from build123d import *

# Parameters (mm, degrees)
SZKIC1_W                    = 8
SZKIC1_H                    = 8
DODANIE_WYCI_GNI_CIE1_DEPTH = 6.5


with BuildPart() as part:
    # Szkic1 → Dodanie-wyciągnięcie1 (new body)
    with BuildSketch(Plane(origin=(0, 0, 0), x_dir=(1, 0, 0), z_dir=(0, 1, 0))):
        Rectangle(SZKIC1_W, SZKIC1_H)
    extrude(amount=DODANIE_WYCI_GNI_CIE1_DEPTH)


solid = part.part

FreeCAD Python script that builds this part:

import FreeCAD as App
import Part
import Sketcher

doc = App.newDocument("Part")
body = doc.addObject("PartDesign::Body", "Body")

# Sketch on XZ plane
sketch1 = doc.addObject("Sketcher::SketchObject", "Sketch")
body.addObject(sketch1)
sketch1.AttachmentSupport = (doc.XZ_Plane, [""])
sketch1.MapMode = "FlatFace"
sketch1.addGeometry([
    Part.LineSegment(App.Vector(-4, -4, 0), App.Vector(-4, 4, 0)),
    Part.LineSegment(App.Vector(-4, 4, 0), App.Vector(4, 4, 0)),
    Part.LineSegment(App.Vector(4, 4, 0), App.Vector(4, -4, 0)),
    Part.LineSegment(App.Vector(4, -4, 0), App.Vector(-4, -4, 0)),
], False)
sketch1.addConstraint([
    Sketcher.Constraint("Coincident", 0, 2, 1, 1),
    Sketcher.Constraint("Coincident", 1, 2, 2, 1),
    Sketcher.Constraint("Coincident", 2, 2, 3, 1),
    Sketcher.Constraint("Coincident", 3, 2, 0, 1),
    Sketcher.Constraint("Vertical", 0),
    Sketcher.Constraint("Horizontal", 1),
    Sketcher.Constraint("Vertical", 2),
    Sketcher.Constraint("Horizontal", 3),
    Sketcher.Constraint("Symmetric", 0, 2, 2, 2, -1, 1),
    Sketcher.Constraint("Equal", 3, 0),
    Sketcher.Constraint("DistanceX", 1, 1, 1, 2, 8.0),
])
pad1 = doc.addObject("PartDesign::Pad", "Pad")
body.addObject(pad1)
pad1.Profile = sketch1
pad1.Length = 6.5
pad1.Reversed = True

doc.recompute()
